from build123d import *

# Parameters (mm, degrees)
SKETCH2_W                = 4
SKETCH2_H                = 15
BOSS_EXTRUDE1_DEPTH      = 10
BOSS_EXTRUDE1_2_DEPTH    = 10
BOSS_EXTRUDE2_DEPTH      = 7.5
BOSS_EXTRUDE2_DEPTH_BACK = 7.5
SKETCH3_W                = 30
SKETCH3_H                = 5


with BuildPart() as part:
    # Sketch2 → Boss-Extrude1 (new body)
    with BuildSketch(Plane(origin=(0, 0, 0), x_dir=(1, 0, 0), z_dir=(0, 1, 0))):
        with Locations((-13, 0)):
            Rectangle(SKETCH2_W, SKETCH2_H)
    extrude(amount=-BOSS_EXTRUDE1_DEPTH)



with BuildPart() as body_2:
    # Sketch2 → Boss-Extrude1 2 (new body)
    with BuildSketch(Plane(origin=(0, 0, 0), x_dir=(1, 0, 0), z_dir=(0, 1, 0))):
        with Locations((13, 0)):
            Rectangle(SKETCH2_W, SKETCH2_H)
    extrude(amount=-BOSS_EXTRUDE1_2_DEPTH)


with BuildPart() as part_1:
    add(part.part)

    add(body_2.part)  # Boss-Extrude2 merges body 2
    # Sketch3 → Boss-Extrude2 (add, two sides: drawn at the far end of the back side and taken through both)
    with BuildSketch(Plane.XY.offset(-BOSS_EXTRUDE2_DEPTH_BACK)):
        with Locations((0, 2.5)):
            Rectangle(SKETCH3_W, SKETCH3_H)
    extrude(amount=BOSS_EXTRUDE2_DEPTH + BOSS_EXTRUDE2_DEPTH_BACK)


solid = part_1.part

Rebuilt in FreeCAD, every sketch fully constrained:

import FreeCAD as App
import Part
import Sketcher
Q = App.Units.Quantity

doc = App.newDocument("Part")
body = doc.addObject("PartDesign::Body", "Body")

sketch1 = body.newObject("Sketcher::SketchObject", "Sketch")
sketch1.AttachmentSupport = (doc.getObject("XZ_Plane"), [""])
sketch1.MapMode = "FlatFace"
sketch1.addGeometry([
    Part.LineSegment(App.Vector(-15, -7.5, 0), App.Vector(-15, 7.5, 0)),
    Part.LineSegment(App.Vector(-15, 7.5, 0), App.Vector(-11, 7.5, 0)),
    Part.LineSegment(App.Vector(-11, 7.5, 0), App.Vector(-11, -7.5, 0)),
    Part.LineSegment(App.Vector(-11, -7.5, 0), App.Vector(-15, -7.5, 0)),
], False)
sketch1.addConstraint([
    Sketcher.Constraint("Coincident", 0, 2, 1, 1),
    Sketcher.Constraint("Coincident", 1, 2, 2, 1),
    Sketcher.Constraint("Coincident", 2, 2, 3, 1),
    Sketcher.Constraint("Coincident", 3, 2, 0, 1),
    Sketcher.Constraint("Vertical", 0),
    Sketcher.Constraint("Horizontal", 1),
    Sketcher.Constraint("Vertical", 2),
    Sketcher.Constraint("Horizontal", 3),
    Sketcher.Constraint("DistanceX", 1, 1, 1, 2, Q("4 mm")),
    Sketcher.Constraint("DistanceY", 0, 1, 0, 2, Q("15 mm")),
    Sketcher.Constraint("DistanceX", 0, 2, -1, 1, Q("15 mm")),
    Sketcher.Constraint("DistanceY", -1, 1, 0, 2, Q("7.5 mm")),
])
pad1 = body.newObject("PartDesign::Pad", "Pad")
pad1.Profile = sketch1
pad1.Length = 10
body2 = doc.addObject("PartDesign::Body", "Body001")

sketch2 = body2.newObject("Sketcher::SketchObject", "Sketch001")
sketch2.AttachmentSupport = (doc.getObject("XZ_Plane001"), [""])
sketch2.MapMode = "FlatFace"
sketch2.addGeometry([
    Part.LineSegment(App.Vector(11, -7.5, 0), App.Vector(11, 7.5, 0)),
    Part.LineSegment(App.Vector(11, 7.5, 0), App.Vector(15, 7.5, 0)),
    Part.LineSegment(App.Vector(15, 7.5, 0), App.Vector(15, -7.5, 0)),
    Part.LineSegment(App.Vector(15, -7.5, 0), App.Vector(11, -7.5, 0)),
], False)
sketch2.addConstraint([
    Sketcher.Constraint("Coincident", 0, 2, 1, 1),
    Sketcher.Constraint("Coincident", 1, 2, 2, 1),
    Sketcher.Constraint("Coincident", 2, 2, 3, 1),
    Sketcher.Constraint("Coincident", 3, 2, 0, 1),
    Sketcher.Constraint("Vertical", 0),
    Sketcher.Constraint("Horizontal", 1),
    Sketcher.Constraint("Vertical", 2),
    Sketcher.Constraint("Horizontal", 3),
    Sketcher.Constraint("DistanceX", 1, 1, 1, 2, Q("4 mm")),
    Sketcher.Constraint("DistanceY", 0, 1, 0, 2, Q("15 mm")),
    Sketcher.Constraint("DistanceX", -1, 1, 0, 2, Q("11 mm")),
    Sketcher.Constraint("DistanceY", -1, 1, 0, 2, Q("7.5 mm")),
])
pad2 = body2.newObject("PartDesign::Pad", "Pad001")
pad2.Profile = sketch2
pad2.Length = 10
body.AllowCompound = True
doc.recompute()

boolean = body.newObject("PartDesign::Boolean", "Boolean")
boolean.Type = "Fuse"
boolean.addObjects([body2])

sketch3 = body.newObject("Sketcher::SketchObject", "Sketch002")
sketch3.AttachmentSupport = (doc.getObject("XY_Plane"), [""])
sketch3.MapMode = "FlatFace"
sketch3.addGeometry([
    Part.LineSegment(App.Vector(-15, 5, 0), App.Vector(-15, 0, 0)),
    Part.LineSegment(App.Vector(-15, 0, 0), App.Vector(15, 0, 0)),
    Part.LineSegment(App.Vector(15, 0, 0), App.Vector(15, 5, 0)),
    Part.LineSegment(App.Vector(15, 5, 0), App.Vector(-15, 5, 0)),
], False)
sketch3.addConstraint([
    Sketcher.Constraint("Coincident", 0, 2, 1, 1),
    Sketcher.Constraint("Coincident", 1, 2, 2, 1),
    Sketcher.Constraint("Coincident", 2, 2, 3, 1),
    Sketcher.Constraint("Coincident", 3, 2, 0, 1),
    Sketcher.Constraint("Vertical", 0),
    Sketcher.Constraint("Horizontal", 1),
    Sketcher.Constraint("Vertical", 2),
    Sketcher.Constraint("Horizontal", 3),
    Sketcher.Constraint("Symmetric", 0, 2, 1, 2, -1, 1),
    Sketcher.Constraint("DistanceX", 1, 1, 1, 2, Q("30 mm")),
    Sketcher.Constraint("DistanceY", 0, 2, 0, 1, Q("5 mm")),
])
pad3 = body.newObject("PartDesign::Pad", "Pad002")
pad3.Profile = sketch3
pad3.Type = "TwoLengths"
pad3.Length = 7.5
pad3.Length2 = 7.5

doc.recompute()
